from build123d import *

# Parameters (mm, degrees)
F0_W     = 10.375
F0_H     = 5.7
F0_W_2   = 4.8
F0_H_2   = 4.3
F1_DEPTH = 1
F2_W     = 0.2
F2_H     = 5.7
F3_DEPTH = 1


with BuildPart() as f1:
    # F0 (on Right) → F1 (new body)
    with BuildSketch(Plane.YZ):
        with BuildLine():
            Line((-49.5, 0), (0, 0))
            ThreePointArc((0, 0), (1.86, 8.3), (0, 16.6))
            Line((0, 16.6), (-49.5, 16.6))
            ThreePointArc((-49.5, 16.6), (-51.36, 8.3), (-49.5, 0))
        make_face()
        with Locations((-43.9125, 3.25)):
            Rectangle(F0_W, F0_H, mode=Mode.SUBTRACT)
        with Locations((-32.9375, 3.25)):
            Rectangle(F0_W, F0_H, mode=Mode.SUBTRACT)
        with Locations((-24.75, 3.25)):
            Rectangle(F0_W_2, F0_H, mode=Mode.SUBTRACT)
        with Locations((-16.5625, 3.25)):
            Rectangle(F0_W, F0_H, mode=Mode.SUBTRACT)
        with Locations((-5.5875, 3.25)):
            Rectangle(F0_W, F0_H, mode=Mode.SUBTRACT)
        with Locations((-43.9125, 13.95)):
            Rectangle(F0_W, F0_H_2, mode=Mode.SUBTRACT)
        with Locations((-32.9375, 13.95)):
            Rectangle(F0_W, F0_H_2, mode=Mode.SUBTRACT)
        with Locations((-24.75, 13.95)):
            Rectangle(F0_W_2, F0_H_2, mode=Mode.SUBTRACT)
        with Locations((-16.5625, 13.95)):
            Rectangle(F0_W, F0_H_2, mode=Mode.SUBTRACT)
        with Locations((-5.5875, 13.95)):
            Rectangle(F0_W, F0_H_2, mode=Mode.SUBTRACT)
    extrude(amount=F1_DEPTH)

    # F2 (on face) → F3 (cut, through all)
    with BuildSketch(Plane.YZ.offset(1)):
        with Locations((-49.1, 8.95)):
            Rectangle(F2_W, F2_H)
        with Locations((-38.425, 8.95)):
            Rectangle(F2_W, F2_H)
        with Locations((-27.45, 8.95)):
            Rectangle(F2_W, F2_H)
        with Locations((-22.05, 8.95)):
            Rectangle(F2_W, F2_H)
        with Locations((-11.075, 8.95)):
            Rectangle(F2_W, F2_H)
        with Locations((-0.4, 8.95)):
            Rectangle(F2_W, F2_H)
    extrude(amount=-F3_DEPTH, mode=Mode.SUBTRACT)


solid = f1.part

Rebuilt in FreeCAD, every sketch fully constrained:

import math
import FreeCAD as App
import Part
import Sketcher

V = App.Vector
Q = App.Units.Quantity


def add_polygon(sketch, points):
    """Adds a closed chain of lines whose ends are joined by coincident constraints."""
    first, n = sketch.GeometryCount, len(points)
    for a, b in zip(points, points[1:] + points[:1]):
        sketch.addGeometry(Part.LineSegment(App.Vector(*a, 0), App.Vector(*b, 0)), False)
    for i in range(n):
        sketch.addConstraint(Sketcher.Constraint("Coincident", first + i, 2, first + (i + 1) % n, 1))

doc = App.newDocument("Part")
body = doc.addObject("PartDesign::Body", "Body")

sketch1 = doc.addObject("Sketcher::SketchObject", "Sketch")
body.addObject(sketch1)
sketch1.AttachmentSupport = (doc.YZ_Plane, [""])
sketch1.MapMode = "FlatFace"
sketch1.addGeometry(Part.LineSegment(V(-49.5, 0, 0), V(0, 0, 0)), False)
sketch1.addGeometry(Part.ArcOfCircle(Part.Circle(V(-17.588817, 8.3, 0), V(0, 0, 1), 19.448817), math.radians(-25.262191), math.radians(25.262191)), False)
sketch1.addGeometry(Part.LineSegment(V(0, 16.6, 0), V(-49.5, 16.6, 0)), False)
sketch1.addGeometry(Part.ArcOfCircle(Part.Circle(V(-31.911183, 8.3, 0), V(0, 0, 1), 19.448817), math.radians(154.737809), math.radians(205.262191)), False)
add_polygon(sketch1, [(-38.725, 0.4), (-49.1, 0.4), (-49.1, 6.1), (-38.725, 6.1)])
add_polygon(sketch1, [(-27.75, 0.4), (-38.125, 0.4), (-38.125, 6.1), (-27.75, 6.1)])
add_polygon(sketch1, [(-22.35, 0.4), (-27.15, 0.4), (-27.15, 6.1), (-22.35, 6.1)])
add_polygon(sketch1, [(-11.375, 0.4), (-21.75, 0.4), (-21.75, 6.1), (-11.375, 6.1)])
add_polygon(sketch1, [(-0.4, 0.4), (-10.775, 0.4), (-10.775, 6.1), (-0.4, 6.1)])
add_polygon(sketch1, [(-38.725, 11.8), (-49.1, 11.8), (-49.1, 16.1), (-38.725, 16.1)])
add_polygon(sketch1, [(-27.75, 11.8), (-38.125, 11.8), (-38.125, 16.1), (-27.75, 16.1)])
add_polygon(sketch1, [(-22.35, 11.8), (-27.15, 11.8), (-27.15, 16.1), (-22.35, 16.1)])
add_polygon(sketch1, [(-11.375, 11.8), (-21.75, 11.8), (-21.75, 16.1), (-11.375, 16.1)])
add_polygon(sketch1, [(-0.4, 11.8), (-10.775, 11.8), (-10.775, 16.1), (-0.4, 16.1)])
sketch1.addConstraint(Sketcher.Constraint("Coincident", 0, 2, 1, 1))
sketch1.addConstraint(Sketcher.Constraint("Coincident", 1, 2, 2, 1))
sketch1.addConstraint(Sketcher.Constraint("Coincident", 2, 2, 3, 1))
sketch1.addConstraint(Sketcher.Constraint("Coincident", 3, 2, 0, 1))
sketch1.addConstraint(Sketcher.Constraint("Horizontal", 0))
sketch1.addConstraint(Sketcher.Constraint("Horizontal", 2))
sketch1.addConstraint(Sketcher.Constraint("Horizontal", 4))
sketch1.addConstraint(Sketcher.Constraint("Vertical", 5))
sketch1.addConstraint(Sketcher.Constraint("Horizontal", 6))
sketch1.addConstraint(Sketcher.Constraint("Vertical", 7))
sketch1.addConstraint(Sketcher.Constraint("Horizontal", 8))
sketch1.addConstraint(Sketcher.Constraint("Vertical", 9))
sketch1.addConstraint(Sketcher.Constraint("Horizontal", 10))
sketch1.addConstraint(Sketcher.Constraint("Vertical", 11))
sketch1.addConstraint(Sketcher.Constraint("Horizontal", 12))
sketch1.addConstraint(Sketcher.Constraint("Vertical", 13))
sketch1.addConstraint(Sketcher.Constraint("Horizontal", 14))
sketch1.addConstraint(Sketcher.Constraint("Vertical", 15))
sketch1.addConstraint(Sketcher.Constraint("Horizontal", 16))
sketch1.addConstraint(Sketcher.Constraint("Vertical", 17))
sketch1.addConstraint(Sketcher.Constraint("Horizontal", 18))
sketch1.addConstraint(Sketcher.Constraint("Vertical", 19))
sketch1.addConstraint(Sketcher.Constraint("Horizontal", 20))
sketch1.addConstraint(Sketcher.Constraint("Vertical", 21))
sketch1.addConstraint(Sketcher.Constraint("Horizontal", 22))
sketch1.addConstraint(Sketcher.Constraint("Vertical", 23))
sketch1.addConstraint(Sketcher.Constraint("Horizontal", 24))
sketch1.addConstraint(Sketcher.Constraint("Vertical", 25))
sketch1.addConstraint(Sketcher.Constraint("Horizontal", 26))
sketch1.addConstraint(Sketcher.Constraint("Vertical", 27))
sketch1.addConstraint(Sketcher.Constraint("Horizontal", 28))
sketch1.addConstraint(Sketcher.Constraint("Vertical", 29))
sketch1.addConstraint(Sketcher.Constraint("Horizontal", 30))
sketch1.addConstraint(Sketcher.Constraint("Vertical", 31))
sketch1.addConstraint(Sketcher.Constraint("Horizontal", 32))
sketch1.addConstraint(Sketcher.Constraint("Vertical", 33))
sketch1.addConstraint(Sketcher.Constraint("Horizontal", 34))
sketch1.addConstraint(Sketcher.Constraint("Vertical", 35))
sketch1.addConstraint(Sketcher.Constraint("Horizontal", 36))
sketch1.addConstraint(Sketcher.Constraint("Vertical", 37))
sketch1.addConstraint(Sketcher.Constraint("Horizontal", 38))
sketch1.addConstraint(Sketcher.Constraint("Vertical", 39))
sketch1.addConstraint(Sketcher.Constraint("Horizontal", 40))
sketch1.addConstraint(Sketcher.Constraint("Vertical", 41))
sketch1.addConstraint(Sketcher.Constraint("Horizontal", 42))
sketch1.addConstraint(Sketcher.Constraint("Vertical", 43))
sketch1.addConstraint(Sketcher.Constraint("Coincident", 0, 2, -1, 1))
sketch1.addConstraint(Sketcher.Constraint("Equal", 1, 3))
sketch1.addConstraint(Sketcher.Constraint("PointOnObject", 1, 2, -2))
sketch1.addConstraint(Sketcher.Constraint("Horizontal", 1, 3, 3, 3))
sketch1.addConstraint(Sketcher.Constraint("Horizontal", 7, 2, 8, 2))
sketch1.addConstraint(Sketcher.Constraint("Horizontal", 6, 2, 9, 2))
sketch1.addConstraint(Sketcher.Constraint("Horizontal", 11, 2, 12, 2))
sketch1.addConstraint(Sketcher.Constraint("Horizontal", 10, 2, 13, 2))
sketch1.addConstraint(Sketcher.Constraint("Horizontal", 15, 2, 16, 2))
sketch1.addConstraint(Sketcher.Constraint("Horizontal", 14, 2, 17, 2))
sketch1.addConstraint(Sketcher.Constraint("Horizontal", 19, 2, 20, 2))
sketch1.addConstraint(Sketcher.Constraint("Horizontal", 18, 2, 21, 2))
sketch1.addConstraint(Sketcher.Constraint("Horizontal", 27, 2, 28, 2))
sketch1.addConstraint(Sketcher.Constraint("Horizontal", 26, 2, 29, 2))
sketch1.addConstraint(Sketcher.Constraint("Horizontal", 31, 2, 32, 2))
sketch1.addConstraint(Sketcher.Constraint("Horizontal", 30, 2, 33, 2))
sketch1.addConstraint(Sketcher.Constraint("Horizontal", 35, 2, 36, 2))
sketch1.addConstraint(Sketcher.Constraint("Horizontal", 34, 2, 37, 2))
sketch1.addConstraint(Sketcher.Constraint("Horizontal", 39, 2, 40, 2))
sketch1.addConstraint(Sketcher.Constraint("Horizontal", 38, 2, 41, 2))
sketch1.addConstraint(Sketcher.Constraint("Vertical", 5, 2, 24, 2))
sketch1.addConstraint(Sketcher.Constraint("Vertical", 7, 2, 26, 2))
sketch1.addConstraint(Sketcher.Constraint("Vertical", 9, 2, 28, 2))
sketch1.addConstraint(Sketcher.Constraint("Vertical", 11, 2, 30, 2))
sketch1.addConstraint(Sketcher.Constraint("Vertical", 13, 2, 32, 2))
sketch1.addConstraint(Sketcher.Constraint("Vertical", 15, 2, 34, 2))
sketch1.addConstraint(Sketcher.Constraint("Vertical", 17, 2, 36, 2))
sketch1.addConstraint(Sketcher.Constraint("Vertical", 19, 2, 38, 2))
sketch1.addConstraint(Sketcher.Constraint("Vertical", 21, 2, 40, 2))
sketch1.addConstraint(Sketcher.Constraint("Vertical", 23, 2, 42, 2))
sketch1.addConstraint(Sketcher.Constraint("Equal", 6, 8))
sketch1.addConstraint(Sketcher.Constraint("Equal", 10, 16))
sketch1.addConstraint(Sketcher.Constraint("Equal", 18, 20))
sketch1.addConstraint(Sketcher.Constraint("DistanceX", 0, 1, 0, 2, Q("49.5 mm")))
sketch1.addConstraint(Sketcher.Constraint("DistanceX", 12, 2, 12, 1, Q("4.8 mm")))
sketch1.addConstraint(Sketcher.Constraint("DistanceY", 5, 1, 5, 2, Q("5.7 mm")))
sketch1.addConstraint(Sketcher.Constraint("DistanceY", 25, 1, 25, 2, Q("4.3 mm")))
sketch1.addConstraint(Sketcher.Constraint("DistanceX", 11, 2, 16, 2, Q("6 mm")))
sketch1.addConstraint(Sketcher.Constraint("DistanceY", 5, 2, 25, 2, Q("10 mm")))
sketch1.addConstraint(Sketcher.Constraint("DistanceY", -1, 1, 1, 3, Q("8.3 mm")))
sketch1.addConstraint(Sketcher.Constraint("DistanceX", 4, 2, -1, 1, Q("49.1 mm")))
sketch1.addConstraint(Sketcher.Constraint("DistanceY", -1, 1, 4, 2, Q("0.4 mm")))
sketch1.addConstraint(Sketcher.Constraint("DistanceX", 22, 2, -1, 1, Q("0.4 mm")))
sketch1.addConstraint(Sketcher.Constraint("DistanceX", 7, 2, 8, 2, Q("0.6 mm")))
sketch1.addConstraint(Sketcher.Constraint("DistanceX", 11, 2, 12, 2, Q("0.6 mm")))
sketch1.addConstraint(Sketcher.Constraint("DistanceX", 19, 2, 20, 2, Q("0.6 mm")))
sketch1.addConstraint(Sketcher.Constraint("Radius", 1, Q("19.448817 mm")))
pad1 = doc.addObject("PartDesign::Pad", "Pad")
body.addObject(pad1)
pad1.Profile = sketch1
pad1.Length = 1

sketch2 = doc.addObject("Sketcher::SketchObject", "Sketch001")
body.addObject(sketch2)
sketch2.AttachmentSupport = (doc.YZ_Plane, [""])
sketch2.MapMode = "FlatFace"
sketch2.AttachmentOffset = App.Placement(V(0, 0, 1), App.Rotation())
add_polygon(sketch2, [(-49.2, 11.8), (-49.2, 6.1), (-49, 6.1), (-49, 11.8)])
add_polygon(sketch2, [(-38.525, 11.8), (-38.525, 6.1), (-38.325, 6.1), (-38.325, 11.8)])
add_polygon(sketch2, [(-27.55, 11.8), (-27.55, 6.1), (-27.35, 6.1), (-27.35, 11.8)])
add_polygon(sketch2, [(-22.15, 11.8), (-22.15, 6.1), (-21.95, 6.1), (-21.95, 11.8)])
add_polygon(sketch2, [(-11.175, 11.8), (-11.175, 6.1), (-10.975, 6.1), (-10.975, 11.8)])
add_polygon(sketch2, [(-0.5, 11.8), (-0.5, 6.1), (-0.3, 6.1), (-0.3, 11.8)])
sketch2.addConstraint(Sketcher.Constraint("Vertical", 0))
sketch2.addConstraint(Sketcher.Constraint("Horizontal", 1))
sketch2.addConstraint(Sketcher.Constraint("Vertical", 2))
sketch2.addConstraint(Sketcher.Constraint("Horizontal", 3))
sketch2.addConstraint(Sketcher.Constraint("Vertical", 4))
sketch2.addConstraint(Sketcher.Constraint("Horizontal", 5))
sketch2.addConstraint(Sketcher.Constraint("Vertical", 6))
sketch2.addConstraint(Sketcher.Constraint("Horizontal", 7))
sketch2.addConstraint(Sketcher.Constraint("Vertical", 8))
sketch2.addConstraint(Sketcher.Constraint("Horizontal", 9))
sketch2.addConstraint(Sketcher.Constraint("Vertical", 10))
sketch2.addConstraint(Sketcher.Constraint("Horizontal", 11))
sketch2.addConstraint(Sketcher.Constraint("Vertical", 12))
sketch2.addConstraint(Sketcher.Constraint("Horizontal", 13))
sketch2.addConstraint(Sketcher.Constraint("Vertical", 14))
sketch2.addConstraint(Sketcher.Constraint("Horizontal", 15))
sketch2.addConstraint(Sketcher.Constraint("Vertical", 16))
sketch2.addConstraint(Sketcher.Constraint("Horizontal", 17))
sketch2.addConstraint(Sketcher.Constraint("Vertical", 18))
sketch2.addConstraint(Sketcher.Constraint("Horizontal", 19))
sketch2.addConstraint(Sketcher.Constraint("Vertical", 20))
sketch2.addConstraint(Sketcher.Constraint("Horizontal", 21))
sketch2.addConstraint(Sketcher.Constraint("Vertical", 22))
sketch2.addConstraint(Sketcher.Constraint("Horizontal", 23))
sketch2.addConstraint(Sketcher.Constraint("Horizontal", 1, 2, 4, 2))
sketch2.addConstraint(Sketcher.Constraint("Horizontal", 3, 2, 6, 2))
sketch2.addConstraint(Sketcher.Constraint("Horizontal", 5, 2, 8, 2))
sketch2.addConstraint(Sketcher.Constraint("Horizontal", 7, 2, 10, 2))
sketch2.addConstraint(Sketcher.Constraint("Horizontal", 9, 2, 12, 2))
sketch2.addConstraint(Sketcher.Constraint("Horizontal", 11, 2, 14, 2))
sketch2.addConstraint(Sketcher.Constraint("Horizontal", 13, 2, 16, 2))
sketch2.addConstraint(Sketcher.Constraint("Horizontal", 15, 2, 18, 2))
sketch2.addConstraint(Sketcher.Constraint("Horizontal", 17, 2, 20, 2))
sketch2.addConstraint(Sketcher.Constraint("Horizontal", 19, 2, 22, 2))
sketch2.addConstraint(Sketcher.Constraint("Equal", 3, 5))
sketch2.addConstraint(Sketcher.Constraint("Equal", 7, 9))
sketch2.addConstraint(Sketcher.Constraint("Equal", 11, 13))
sketch2.addConstraint(Sketcher.Constraint("Equal", 15, 17))
sketch2.addConstraint(Sketcher.Constraint("Equal", 19, 21))
sketch2.addConstraint(Sketcher.Constraint("DistanceX", 1, 1, 1, 2, Q("0.2 mm")))
sketch2.addConstraint(Sketcher.Constraint("DistanceY", 0, 2, 0, 1, Q("5.7 mm")))
sketch2.addConstraint(Sketcher.Constraint("DistanceX", 1, 2, -1, 1, Q("49 mm")))
sketch2.addConstraint(Sketcher.Constraint("DistanceY", -1, 1, 0, 2, Q("6.1 mm")))
sketch2.addConstraint(Sketcher.Constraint("DistanceX", 20, 2, -1, 1, Q("0.5 mm")))
sketch2.addConstraint(Sketcher.Constraint("DistanceX", 9, 2, 12, 2, Q("5.2 mm")))
sketch2.addConstraint(Sketcher.Constraint("DistanceX", 8, 2, -1, 1, Q("27.55 mm")))
sketch2.addConstraint(Sketcher.Constraint("DistanceX", 4, 2, -1, 1, Q("38.525 mm")))
sketch2.addConstraint(Sketcher.Constraint("DistanceX", 16, 2, -1, 1, Q("11.175 mm")))
pocket1 = doc.addObject("PartDesign::Pocket", "Pocket")
body.addObject(pocket1)
pocket1.Profile = sketch2
pocket1.Type = "ThroughAll"

doc.recompute()
